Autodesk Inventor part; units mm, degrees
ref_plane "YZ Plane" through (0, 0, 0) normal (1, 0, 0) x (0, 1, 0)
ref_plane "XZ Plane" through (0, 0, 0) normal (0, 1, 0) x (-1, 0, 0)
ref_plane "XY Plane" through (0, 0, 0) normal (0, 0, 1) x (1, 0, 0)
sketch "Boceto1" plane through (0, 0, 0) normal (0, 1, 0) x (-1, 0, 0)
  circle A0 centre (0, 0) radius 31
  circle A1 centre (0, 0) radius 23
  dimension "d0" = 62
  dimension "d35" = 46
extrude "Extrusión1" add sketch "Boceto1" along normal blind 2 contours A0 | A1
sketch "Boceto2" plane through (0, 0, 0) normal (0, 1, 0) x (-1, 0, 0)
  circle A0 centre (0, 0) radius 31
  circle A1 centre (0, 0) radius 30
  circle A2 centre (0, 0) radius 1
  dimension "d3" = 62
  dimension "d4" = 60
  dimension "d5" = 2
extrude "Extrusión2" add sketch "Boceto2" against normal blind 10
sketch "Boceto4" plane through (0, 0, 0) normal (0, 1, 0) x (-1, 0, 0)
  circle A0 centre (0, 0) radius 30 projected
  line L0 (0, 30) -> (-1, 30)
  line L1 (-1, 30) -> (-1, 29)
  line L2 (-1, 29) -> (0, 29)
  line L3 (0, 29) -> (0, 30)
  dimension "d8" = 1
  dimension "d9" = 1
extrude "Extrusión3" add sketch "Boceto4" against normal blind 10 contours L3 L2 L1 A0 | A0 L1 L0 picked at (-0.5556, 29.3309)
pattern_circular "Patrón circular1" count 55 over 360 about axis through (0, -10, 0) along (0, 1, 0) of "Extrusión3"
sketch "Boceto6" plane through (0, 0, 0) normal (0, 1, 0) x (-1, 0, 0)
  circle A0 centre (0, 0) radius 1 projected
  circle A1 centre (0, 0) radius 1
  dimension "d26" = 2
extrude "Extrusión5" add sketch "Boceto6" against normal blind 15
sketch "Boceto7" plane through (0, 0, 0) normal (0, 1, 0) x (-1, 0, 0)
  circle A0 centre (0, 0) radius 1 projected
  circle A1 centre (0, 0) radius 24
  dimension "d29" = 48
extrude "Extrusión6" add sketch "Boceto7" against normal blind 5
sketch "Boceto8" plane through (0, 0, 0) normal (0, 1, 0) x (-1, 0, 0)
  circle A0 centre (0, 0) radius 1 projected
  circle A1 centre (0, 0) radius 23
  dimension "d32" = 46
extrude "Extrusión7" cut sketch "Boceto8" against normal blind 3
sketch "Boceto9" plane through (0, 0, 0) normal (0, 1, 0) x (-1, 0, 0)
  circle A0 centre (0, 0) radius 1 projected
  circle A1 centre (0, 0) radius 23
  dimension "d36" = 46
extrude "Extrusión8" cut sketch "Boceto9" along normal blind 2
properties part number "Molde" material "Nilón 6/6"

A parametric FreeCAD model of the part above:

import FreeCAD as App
import Part
import Sketcher
from FreeCAD import Vector

doc = App.newDocument("Part")
body = doc.addObject("PartDesign::Body", "Body")

# Sketch on XZ plane
sketch1 = body.newObject("Sketcher::SketchObject", "Sketch")
sketch1.AttachmentSupport = (doc.getObject("XZ_Plane"), [""])
sketch1.MapMode = "FlatFace"
sketch1.addGeometry(Part.Circle(Vector(0, 0, 0), Vector(0, 0, 1), 31), False)
sketch1.addConstraint(Sketcher.Constraint("Coincident", 0, 3, -1, 1))
sketch1.addConstraint(Sketcher.Constraint("Diameter", 0, 62.0))
pad1 = body.newObject("PartDesign::Pad", "Pad")
pad1.Profile = sketch1
pad1.Length = 2
pad1.Reversed = True

# Sketch on XZ plane
sketch2 = body.newObject("Sketcher::SketchObject", "Sketch001")
sketch2.AttachmentSupport = (doc.getObject("XZ_Plane"), [""])
sketch2.MapMode = "FlatFace"
sketch2.addGeometry(Part.Circle(Vector(0, 0, 0), Vector(0, 0, 1), 31), False)
sketch2.addGeometry(Part.Circle(Vector(0, 0, 0), Vector(0, 0, 1), 30), False)
sketch2.addGeometry(Part.Circle(Vector(0, 0, 0), Vector(0, 0, 1), 1), False)
sketch2.addConstraint(Sketcher.Constraint("Coincident", 0, 3, -1, 1))
sketch2.addConstraint(Sketcher.Constraint("Coincident", 1, 3, -1, 1))
sketch2.addConstraint(Sketcher.Constraint("Coincident", 2, 3, -1, 1))
sketch2.addConstraint(Sketcher.Constraint("Diameter", 0, 62.0))
sketch2.addConstraint(Sketcher.Constraint("Diameter", 1, 60.0))
sketch2.addConstraint(Sketcher.Constraint("Diameter", 2, 2.0))
pad2 = body.newObject("PartDesign::Pad", "Pad001")
pad2.Profile = sketch2
pad2.Length = 10

# Sketch on XZ plane
sketch3 = body.newObject("Sketcher::SketchObject", "Sketch002")
sketch3.AttachmentSupport = (doc.getObject("XZ_Plane"), [""])
sketch3.MapMode = "FlatFace"
sketch3.addGeometry(Part.LineSegment(Vector(0, 29, 0), Vector(0, 30, 0)), False)
sketch3.addGeometry(Part.LineSegment(Vector(0, 30, 0), Vector(1, 30, 0)), False)
sketch3.addGeometry(Part.LineSegment(Vector(1, 30, 0), Vector(1, 29, 0)), False)
sketch3.addGeometry(Part.LineSegment(Vector(1, 29, 0), Vector(0, 29, 0)), False)
sketch3.addConstraint(Sketcher.Constraint("Coincident", 0, 2, 1, 1))
sketch3.addConstraint(Sketcher.Constraint("Coincident", 1, 2, 2, 1))
sketch3.addConstraint(Sketcher.Constraint("Coincident", 2, 2, 3, 1))
sketch3.addConstraint(Sketcher.Constraint("Coincident", 3, 2, 0, 1))
sketch3.addConstraint(Sketcher.Constraint("Vertical", 0))
sketch3.addConstraint(Sketcher.Constraint("Horizontal", 1))
sketch3.addConstraint(Sketcher.Constraint("Vertical", 2))
sketch3.addConstraint(Sketcher.Constraint("Horizontal", 3))
sketch3.addConstraint(Sketcher.Constraint("PointOnObject", 0, 2, -2))
sketch3.addConstraint(Sketcher.Constraint("Equal", 3, 0))
sketch3.addConstraint(Sketcher.Constraint("DistanceX", 1, 1, 1, 2, 1.0))
sketch3.addConstraint(Sketcher.Constraint("DistanceY", -1, 1, 0, 2, 30.0))
pad3 = body.newObject("PartDesign::Pad", "Pad002")
pad3.Profile = sketch3
pad3.Length = 10
doc.recompute()

polarpattern = body.newObject("PartDesign::PolarPattern", "PolarPattern")
polarpattern.Originals = [pad3]
polarpattern.Axis = (doc.getObject("Y_Axis"), [""])
polarpattern.Angle = 360
polarpattern.Occurrences = 55
body.Tip = polarpattern

# Sketch on XZ plane
sketch4 = body.newObject("Sketcher::SketchObject", "Sketch003")
sketch4.AttachmentSupport = (doc.getObject("XZ_Plane"), [""])
sketch4.MapMode = "FlatFace"
sketch4.addGeometry(Part.Circle(Vector(0, 0, 0), Vector(0, 0, 1), 1), False)
sketch4.addConstraint(Sketcher.Constraint("Coincident", 0, 3, -1, 1))
sketch4.addConstraint(Sketcher.Constraint("Diameter", 0, 2.0))
pad4 = body.newObject("PartDesign::Pad", "Pad003")
pad4.Profile = sketch4
pad4.Length = 15

# Sketch on XZ plane
sketch5 = body.newObject("Sketcher::SketchObject", "Sketch004")
sketch5.AttachmentSupport = (doc.getObject("XZ_Plane"), [""])
sketch5.MapMode = "FlatFace"
sketch5.addGeometry(Part.Circle(Vector(0, 0, 0), Vector(0, 0, 1), 24), False)
sketch5.addGeometry(Part.Circle(Vector(0, 0, 0), Vector(0, 0, 1), 1), False)
sketch5.addConstraint(Sketcher.Constraint("Coincident", 0, 3, -1, 1))
sketch5.addConstraint(Sketcher.Constraint("Coincident", 1, 3, -1, 1))
sketch5.addConstraint(Sketcher.Constraint("Diameter", 0, 48.0))
sketch5.addConstraint(Sketcher.Constraint("Diameter", 1, 2.0))
pad5 = body.newObject("PartDesign::Pad", "Pad004")
pad5.Profile = sketch5
pad5.Length = 5

# Sketch on XZ plane
sketch6 = body.newObject("Sketcher::SketchObject", "Sketch005")
sketch6.AttachmentSupport = (doc.getObject("XZ_Plane"), [""])
sketch6.MapMode = "FlatFace"
sketch6.addGeometry(Part.Circle(Vector(0, 0, 0), Vector(0, 0, 1), 23), False)
sketch6.addGeometry(Part.Circle(Vector(0, 0, 0), Vector(0, 0, 1), 1), False)
sketch6.addConstraint(Sketcher.Constraint("Coincident", 0, 3, -1, 1))
sketch6.addConstraint(Sketcher.Constraint("Coincident", 1, 3, -1, 1))
sketch6.addConstraint(Sketcher.Constraint("Diameter", 0, 46.0))
sketch6.addConstraint(Sketcher.Constraint("Diameter", 1, 2.0))
pocket1 = body.newObject("PartDesign::Pocket", "Pocket")
pocket1.Profile = sketch6
pocket1.Length = 3
pocket1.Reversed = True

# Sketch on XZ plane
sketch7 = body.newObject("Sketcher::SketchObject", "Sketch006")
sketch7.AttachmentSupport = (doc.getObject("XZ_Plane"), [""])
sketch7.MapMode = "FlatFace"
sketch7.addGeometry(Part.Circle(Vector(0, 0, 0), Vector(0, 0, 1), 23), False)
sketch7.addGeometry(Part.Circle(Vector(0, 0, 0), Vector(0, 0, 1), 1), False)
sketch7.addConstraint(Sketcher.Constraint("Coincident", 0, 3, -1, 1))
sketch7.addConstraint(Sketcher.Constraint("Coincident", 1, 3, -1, 1))
sketch7.addConstraint(Sketcher.Constraint("Diameter", 0, 46.0))
sketch7.addConstraint(Sketcher.Constraint("Diameter", 1, 2.0))
pocket2 = body.newObject("PartDesign::Pocket", "Pocket001")
pocket2.Profile = sketch7
pocket2.Length = 2

doc.recompute()
